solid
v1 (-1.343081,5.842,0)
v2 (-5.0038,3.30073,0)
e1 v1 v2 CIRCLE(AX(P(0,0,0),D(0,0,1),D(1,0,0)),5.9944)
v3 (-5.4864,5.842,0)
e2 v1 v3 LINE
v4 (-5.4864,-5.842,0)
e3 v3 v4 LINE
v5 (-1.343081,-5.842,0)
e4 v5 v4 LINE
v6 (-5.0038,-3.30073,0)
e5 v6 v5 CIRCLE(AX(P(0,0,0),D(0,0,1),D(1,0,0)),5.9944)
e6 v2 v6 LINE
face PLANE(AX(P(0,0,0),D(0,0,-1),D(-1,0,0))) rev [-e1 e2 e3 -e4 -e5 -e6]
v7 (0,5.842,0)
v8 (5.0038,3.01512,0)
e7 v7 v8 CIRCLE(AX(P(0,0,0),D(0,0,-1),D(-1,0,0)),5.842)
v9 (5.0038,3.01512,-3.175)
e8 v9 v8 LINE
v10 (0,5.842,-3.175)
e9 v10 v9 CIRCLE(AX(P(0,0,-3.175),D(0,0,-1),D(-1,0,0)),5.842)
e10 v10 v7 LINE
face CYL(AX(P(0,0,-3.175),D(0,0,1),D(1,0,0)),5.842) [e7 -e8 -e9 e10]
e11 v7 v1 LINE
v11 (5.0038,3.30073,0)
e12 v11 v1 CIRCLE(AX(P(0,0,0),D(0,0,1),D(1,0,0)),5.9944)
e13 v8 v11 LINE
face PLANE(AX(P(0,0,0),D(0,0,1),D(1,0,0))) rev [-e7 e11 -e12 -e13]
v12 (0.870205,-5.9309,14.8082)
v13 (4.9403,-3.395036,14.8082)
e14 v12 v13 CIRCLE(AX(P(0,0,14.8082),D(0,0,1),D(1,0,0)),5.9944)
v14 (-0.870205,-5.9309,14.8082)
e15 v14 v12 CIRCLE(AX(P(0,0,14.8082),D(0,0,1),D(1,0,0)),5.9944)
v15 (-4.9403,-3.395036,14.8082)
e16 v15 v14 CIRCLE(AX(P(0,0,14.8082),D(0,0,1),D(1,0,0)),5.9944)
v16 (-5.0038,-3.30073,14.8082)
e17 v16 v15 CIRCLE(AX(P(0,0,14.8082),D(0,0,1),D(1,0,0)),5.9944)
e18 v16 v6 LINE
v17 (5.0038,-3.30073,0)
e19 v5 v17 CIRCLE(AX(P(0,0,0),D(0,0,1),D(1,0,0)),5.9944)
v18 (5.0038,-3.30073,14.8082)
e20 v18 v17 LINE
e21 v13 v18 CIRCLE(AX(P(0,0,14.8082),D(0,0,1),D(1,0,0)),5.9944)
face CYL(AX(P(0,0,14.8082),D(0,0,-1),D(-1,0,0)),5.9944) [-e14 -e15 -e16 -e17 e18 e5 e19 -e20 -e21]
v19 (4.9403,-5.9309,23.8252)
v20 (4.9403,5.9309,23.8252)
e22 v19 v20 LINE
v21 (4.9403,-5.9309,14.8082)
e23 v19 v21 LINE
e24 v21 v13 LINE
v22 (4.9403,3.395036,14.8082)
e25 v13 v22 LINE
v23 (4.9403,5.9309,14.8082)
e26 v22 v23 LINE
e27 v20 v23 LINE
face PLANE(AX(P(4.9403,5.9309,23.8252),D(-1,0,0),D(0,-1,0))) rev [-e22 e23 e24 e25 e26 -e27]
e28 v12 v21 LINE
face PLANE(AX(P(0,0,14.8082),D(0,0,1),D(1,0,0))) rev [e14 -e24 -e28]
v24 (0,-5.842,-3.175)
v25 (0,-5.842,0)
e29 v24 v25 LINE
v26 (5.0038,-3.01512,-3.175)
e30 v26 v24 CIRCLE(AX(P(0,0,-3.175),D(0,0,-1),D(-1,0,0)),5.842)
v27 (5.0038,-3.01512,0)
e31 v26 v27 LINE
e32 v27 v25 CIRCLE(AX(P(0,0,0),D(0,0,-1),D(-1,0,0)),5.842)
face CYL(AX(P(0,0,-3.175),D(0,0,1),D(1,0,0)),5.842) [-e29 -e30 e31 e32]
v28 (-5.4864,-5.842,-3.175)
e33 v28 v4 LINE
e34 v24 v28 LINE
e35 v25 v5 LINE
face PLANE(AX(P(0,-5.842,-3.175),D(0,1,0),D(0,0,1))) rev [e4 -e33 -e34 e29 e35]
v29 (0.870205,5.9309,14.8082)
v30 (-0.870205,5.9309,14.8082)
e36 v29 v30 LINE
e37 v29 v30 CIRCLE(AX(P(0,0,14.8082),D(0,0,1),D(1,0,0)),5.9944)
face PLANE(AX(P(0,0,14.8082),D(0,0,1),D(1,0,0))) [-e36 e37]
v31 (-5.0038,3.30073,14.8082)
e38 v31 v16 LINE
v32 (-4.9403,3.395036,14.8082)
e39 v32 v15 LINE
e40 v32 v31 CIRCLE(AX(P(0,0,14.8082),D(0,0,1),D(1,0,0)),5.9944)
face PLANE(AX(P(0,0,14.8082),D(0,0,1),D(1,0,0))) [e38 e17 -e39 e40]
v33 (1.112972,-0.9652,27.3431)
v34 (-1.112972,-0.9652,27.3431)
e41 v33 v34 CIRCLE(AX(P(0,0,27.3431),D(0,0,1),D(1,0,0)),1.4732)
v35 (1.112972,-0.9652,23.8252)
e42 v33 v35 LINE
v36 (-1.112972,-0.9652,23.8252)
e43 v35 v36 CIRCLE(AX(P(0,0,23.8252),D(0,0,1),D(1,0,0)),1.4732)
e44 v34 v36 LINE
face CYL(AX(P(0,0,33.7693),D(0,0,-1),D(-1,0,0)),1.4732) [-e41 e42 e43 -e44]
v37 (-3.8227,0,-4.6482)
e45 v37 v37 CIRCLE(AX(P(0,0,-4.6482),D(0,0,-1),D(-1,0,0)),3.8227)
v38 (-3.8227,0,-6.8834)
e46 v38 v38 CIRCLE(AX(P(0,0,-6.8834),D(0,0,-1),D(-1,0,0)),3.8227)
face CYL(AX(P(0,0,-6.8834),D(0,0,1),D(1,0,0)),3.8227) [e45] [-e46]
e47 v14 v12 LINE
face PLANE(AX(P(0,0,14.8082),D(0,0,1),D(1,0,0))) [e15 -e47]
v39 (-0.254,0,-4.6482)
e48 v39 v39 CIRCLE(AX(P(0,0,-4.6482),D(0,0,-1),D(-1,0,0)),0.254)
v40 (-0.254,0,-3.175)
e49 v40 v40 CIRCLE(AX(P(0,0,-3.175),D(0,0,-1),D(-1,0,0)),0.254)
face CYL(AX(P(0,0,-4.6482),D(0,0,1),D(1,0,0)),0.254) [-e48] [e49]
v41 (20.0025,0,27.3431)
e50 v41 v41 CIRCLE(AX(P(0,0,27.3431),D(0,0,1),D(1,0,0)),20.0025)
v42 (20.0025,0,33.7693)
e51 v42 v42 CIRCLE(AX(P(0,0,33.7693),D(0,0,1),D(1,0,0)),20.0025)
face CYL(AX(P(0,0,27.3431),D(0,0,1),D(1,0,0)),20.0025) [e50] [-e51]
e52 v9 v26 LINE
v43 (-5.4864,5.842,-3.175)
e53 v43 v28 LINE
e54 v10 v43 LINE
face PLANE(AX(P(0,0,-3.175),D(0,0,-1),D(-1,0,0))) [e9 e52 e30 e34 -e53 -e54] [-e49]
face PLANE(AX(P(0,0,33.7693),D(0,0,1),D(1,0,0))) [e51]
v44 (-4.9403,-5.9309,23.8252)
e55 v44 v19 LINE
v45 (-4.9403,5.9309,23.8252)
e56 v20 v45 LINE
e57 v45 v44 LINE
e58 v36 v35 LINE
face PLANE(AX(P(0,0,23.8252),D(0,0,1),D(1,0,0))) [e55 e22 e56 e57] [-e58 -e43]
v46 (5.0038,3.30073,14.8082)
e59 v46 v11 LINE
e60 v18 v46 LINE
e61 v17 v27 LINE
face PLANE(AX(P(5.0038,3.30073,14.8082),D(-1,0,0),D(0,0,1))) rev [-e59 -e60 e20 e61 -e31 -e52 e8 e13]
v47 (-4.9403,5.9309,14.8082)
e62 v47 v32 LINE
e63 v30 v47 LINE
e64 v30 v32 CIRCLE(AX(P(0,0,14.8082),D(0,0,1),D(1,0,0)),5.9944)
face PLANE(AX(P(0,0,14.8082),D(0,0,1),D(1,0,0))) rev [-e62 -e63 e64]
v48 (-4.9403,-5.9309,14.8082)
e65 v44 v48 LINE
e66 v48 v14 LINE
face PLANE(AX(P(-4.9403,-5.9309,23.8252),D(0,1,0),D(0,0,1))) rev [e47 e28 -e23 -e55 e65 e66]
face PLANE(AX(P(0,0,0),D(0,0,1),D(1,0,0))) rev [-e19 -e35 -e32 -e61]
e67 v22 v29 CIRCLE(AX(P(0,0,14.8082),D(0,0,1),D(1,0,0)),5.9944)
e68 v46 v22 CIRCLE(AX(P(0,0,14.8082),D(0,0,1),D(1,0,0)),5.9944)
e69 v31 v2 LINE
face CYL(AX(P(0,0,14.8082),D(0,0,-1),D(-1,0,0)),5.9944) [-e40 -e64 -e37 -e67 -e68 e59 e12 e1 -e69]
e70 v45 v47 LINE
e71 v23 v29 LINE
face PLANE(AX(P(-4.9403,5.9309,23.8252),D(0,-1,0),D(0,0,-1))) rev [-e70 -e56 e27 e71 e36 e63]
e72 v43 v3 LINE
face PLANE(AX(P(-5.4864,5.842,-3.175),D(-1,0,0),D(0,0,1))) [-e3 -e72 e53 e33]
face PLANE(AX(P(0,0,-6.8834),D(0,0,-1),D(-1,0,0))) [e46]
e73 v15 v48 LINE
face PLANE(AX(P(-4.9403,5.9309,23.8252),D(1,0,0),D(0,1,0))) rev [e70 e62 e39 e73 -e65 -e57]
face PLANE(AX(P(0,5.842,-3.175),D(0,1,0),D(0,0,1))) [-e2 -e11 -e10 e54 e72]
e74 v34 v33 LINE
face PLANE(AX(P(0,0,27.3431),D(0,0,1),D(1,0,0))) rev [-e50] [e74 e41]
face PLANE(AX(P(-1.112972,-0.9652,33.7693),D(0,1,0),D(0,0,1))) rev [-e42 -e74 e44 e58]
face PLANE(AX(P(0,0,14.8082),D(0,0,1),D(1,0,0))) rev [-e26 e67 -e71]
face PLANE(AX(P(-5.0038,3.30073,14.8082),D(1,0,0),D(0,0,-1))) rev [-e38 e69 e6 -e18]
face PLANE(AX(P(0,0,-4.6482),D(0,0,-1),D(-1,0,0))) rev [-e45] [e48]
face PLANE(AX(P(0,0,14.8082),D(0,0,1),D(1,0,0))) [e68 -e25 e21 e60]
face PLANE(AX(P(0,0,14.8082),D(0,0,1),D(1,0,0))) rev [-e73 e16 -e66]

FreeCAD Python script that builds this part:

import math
import FreeCAD as App
import Part
import Sketcher
from FreeCAD import Vector
Q = App.Units.Quantity

doc = App.newDocument("Part")
body = doc.addObject("PartDesign::Body", "Body")

# Sketch on XY plane
sketch1 = body.newObject("Sketcher::SketchObject", "Sketch")
sketch1.AttachmentSupport = (doc.getObject("XY_Plane"), [""])
sketch1.MapMode = "FlatFace"
sketch1.addGeometry([
    Part.LineSegment(Vector(-5.0038, 3.30073, 0), Vector(-5.0038, -3.30073, 0)),
    Part.ArcOfCircle(Part.Circle(Vector(0, 0, 0), Vector(0, 0, 1), 5.9944), math.radians(-146.589375), math.radians(-33.410625)),
    Part.LineSegment(Vector(5.0038, -3.30073, 0), Vector(5.0038, 3.30073, 0)),
    Part.ArcOfCircle(Part.Circle(Vector(0, 0, 0), Vector(0, 0, 1), 5.9944), math.radians(33.410625), math.radians(146.589375)),
], False)
sketch1.addConstraint([
    Sketcher.Constraint("Coincident", 0, 2, 1, 1),
    Sketcher.Constraint("Coincident", 1, 2, 2, 1),
    Sketcher.Constraint("Coincident", 2, 2, 3, 1),
    Sketcher.Constraint("Coincident", 3, 2, 0, 1),
    Sketcher.Constraint("Vertical", 0),
    Sketcher.Constraint("Vertical", 2),
    Sketcher.Constraint("Coincident", 1, 3, -1, 1),
    Sketcher.Constraint("Coincident", 3, 3, -1, 1),
    Sketcher.Constraint("Equal", 1, 3),
    Sketcher.Constraint("Horizontal", 0, 2, 1, 2),
    Sketcher.Constraint("Radius", 1, Q("0.236 in")),
    Sketcher.Constraint("DistanceY", 0, 2, 0, 1, Q("0.2599 in")),
])
pad1 = body.newObject("PartDesign::Pad", "Pad")
pad1.Profile = sketch1
pad1.Length = Q("0.583 in")

# Sketch on XY plane
sketch2 = body.newObject("Sketcher::SketchObject", "Sketch001")
sketch2.AttachmentSupport = (doc.getObject("XY_Plane"), [""])
sketch2.MapMode = "FlatFace"
sketch2.AttachmentOffset = App.Placement(Vector(0, 0, 0.583 * 25.4), App.Rotation())
sketch2.addGeometry([
    Part.LineSegment(Vector(-4.9403, 5.9309, 0), Vector(-4.9403, -5.9309, 0)),
    Part.LineSegment(Vector(-4.9403, -5.9309, 0), Vector(4.9403, -5.9309, 0)),
    Part.LineSegment(Vector(4.9403, -5.9309, 0), Vector(4.9403, 5.9309, 0)),
    Part.LineSegment(Vector(4.9403, 5.9309, 0), Vector(-4.9403, 5.9309, 0)),
], False)
sketch2.addConstraint([
    Sketcher.Constraint("Coincident", 0, 2, 1, 1),
    Sketcher.Constraint("Coincident", 1, 2, 2, 1),
    Sketcher.Constraint("Coincident", 2, 2, 3, 1),
    Sketcher.Constraint("Coincident", 3, 2, 0, 1),
    Sketcher.Constraint("Vertical", 0),
    Sketcher.Constraint("Horizontal", 1),
    Sketcher.Constraint("Vertical", 2),
    Sketcher.Constraint("Horizontal", 3),
    Sketcher.Constraint("Symmetric", 0, 2, 2, 2, -1, 1),
    Sketcher.Constraint("DistanceX", 1, 1, 1, 2, Q("0.389 in")),
    Sketcher.Constraint("DistanceY", 0, 2, 0, 1, Q("0.467 in")),
])
pad2 = body.newObject("PartDesign::Pad", "Pad001")
pad2.Profile = sketch2
pad2.Length = Q("0.355 in")

# Sketch on XY plane
sketch3 = body.newObject("Sketcher::SketchObject", "Sketch002")
sketch3.AttachmentSupport = (doc.getObject("XY_Plane"), [""])
sketch3.MapMode = "FlatFace"
sketch3.AttachmentOffset = App.Placement(Vector(0, 0, 0.938 * 25.4), App.Rotation())
sketch3.addGeometry([
    Part.LineSegment(Vector(-1.112972, -0.9652, 0), Vector(1.112972, -0.9652, 0)),
    Part.ArcOfCircle(Part.Circle(Vector(0, 0, 0), Vector(0, 0, 1), 1.4732), math.radians(-40.932725), math.radians(220.932725)),
], False)
sketch3.addConstraint([
    Sketcher.Constraint("Coincident", 0, 1, 1, 2),
    Sketcher.Constraint("Coincident", 1, 1, 0, 2),
    Sketcher.Constraint("Horizontal", 0),
    Sketcher.Constraint("Coincident", 1, 3, -1, 1),
    Sketcher.Constraint("Radius", 1, Q("0.058 in")),
    Sketcher.Constraint("DistanceY", 0, 1, -1, 1, Q("0.038 in")),
])
pad3 = body.newObject("PartDesign::Pad", "Pad002")
pad3.Profile = sketch3
pad3.Length = Q("0.3915 in")

# Sketch on XY plane
sketch4 = body.newObject("Sketcher::SketchObject", "Sketch003")
sketch4.AttachmentSupport = (doc.getObject("XY_Plane"), [""])
sketch4.MapMode = "FlatFace"
sketch4.AttachmentOffset = App.Placement(Vector(0, 0, 1.0765 * 25.4), App.Rotation())
sketch4.addGeometry([
    Part.Circle(Vector(0, 0, 0), Vector(0, 0, 1), 20.0025),
    Part.LineSegment(Vector(1.112972, -0.9652, 0), Vector(-1.112972, -0.9652, 0)),
    Part.ArcOfCircle(Part.Circle(Vector(0, 0, 0), Vector(0, 0, 1), 1.4732), math.radians(-40.932725), math.radians(220.932725)),
], False)
sketch4.addConstraint([
    Sketcher.Constraint("Coincident", 1, 1, 2, 1),
    Sketcher.Constraint("Coincident", 2, 2, 1, 2),
    Sketcher.Constraint("Horizontal", 1),
    Sketcher.Constraint("Coincident", 0, 3, -1, 1),
    Sketcher.Constraint("Coincident", 2, 3, -1, 1),
    Sketcher.Constraint("Diameter", 0, Q("1.575 in")),
    Sketcher.Constraint("Radius", 2, Q("0.058 in")),
    Sketcher.Constraint("DistanceY", 1, 1, -1, 1, Q("0.038 in")),
])
pad4 = body.newObject("PartDesign::Pad", "Pad003")
pad4.Profile = sketch4
pad4.Length = Q("0.253 in")

# Sketch on XY plane
sketch5 = body.newObject("Sketcher::SketchObject", "Sketch004")
sketch5.AttachmentSupport = (doc.getObject("XY_Plane"), [""])
sketch5.MapMode = "FlatFace"
sketch5.addGeometry([
    Part.LineSegment(Vector(0, -5.842, 0), Vector(-5.4864, -5.842, 0)),  # 0
    Part.LineSegment(Vector(-5.4864, -5.842, 0), Vector(-5.4864, 5.842, 0)),  # 1
    Part.LineSegment(Vector(-5.4864, 5.842, 0), Vector(0, 5.842, 0)),  # 2
    Part.ArcOfCircle(Part.Circle(Vector(0, 0, 0), Vector(0, 0, 1), 5.842), math.radians(31.071741), math.radians(90)),  # 3
    Part.LineSegment(Vector(5.0038, 3.01512, 0), Vector(5.0038, -3.01512, 0)),  # 4
    Part.ArcOfCircle(Part.Circle(Vector(0, 0, 0), Vector(0, 0, 1), 5.842), math.radians(-90), math.radians(-31.071741)),  # 5
], False)
sketch5.addConstraint([
    Sketcher.Constraint("Coincident", 0, 2, 1, 1),
    Sketcher.Constraint("Coincident", 1, 2, 2, 1),
    Sketcher.Constraint("Tangent", 2, 2, 3, 2),
    Sketcher.Constraint("Coincident", 3, 1, 4, 1),
    Sketcher.Constraint("Coincident", 4, 2, 5, 2),
    Sketcher.Constraint("Tangent", 5, 1, 0, 1),
    Sketcher.Constraint("Horizontal", 0),
    Sketcher.Constraint("Vertical", 1),
    Sketcher.Constraint("Horizontal", 2),
    Sketcher.Constraint("Vertical", 4),
    Sketcher.Constraint("Coincident", 3, 3, -1, 1),
    Sketcher.Constraint("Coincident", 5, 3, -1, 1),
    Sketcher.Constraint("Equal", 3, 5),
    Sketcher.Constraint("Radius", 3, Q("0.23 in")),
    Sketcher.Constraint("DistanceX", 0, 2, 0, 1, Q("0.216 in")),
    Sketcher.Constraint("DistanceX", -1, 1, 3, 1, Q("0.197 in")),
])
pad5 = body.newObject("PartDesign::Pad", "Pad004")
pad5.Profile = sketch5
pad5.Length = Q("0.125 in")
pad5.Reversed = True

# Sketch on XY plane
sketch6 = body.newObject("Sketcher::SketchObject", "Sketch005")
sketch6.AttachmentSupport = (doc.getObject("XY_Plane"), [""])
sketch6.MapMode = "FlatFace"
sketch6.AttachmentOffset = App.Placement(Vector(0, 0, -0.125 * 25.4), App.Rotation())
sketch6.addGeometry(Part.Circle(Vector(0, 0, 0), Vector(0, 0, 1), 0.254), False)
sketch6.addConstraint([
    Sketcher.Constraint("Coincident", 0, 3, -1, 1),
    Sketcher.Constraint("Diameter", 0, Q("0.02 in")),
])
pad6 = body.newObject("PartDesign::Pad", "Pad005")
pad6.Profile = sketch6
pad6.Length = Q("0.058 in")
pad6.Reversed = True

# Sketch on XY plane
sketch7 = body.newObject("Sketcher::SketchObject", "Sketch006")
sketch7.AttachmentSupport = (doc.getObject("XY_Plane"), [""])
sketch7.MapMode = "FlatFace"
sketch7.AttachmentOffset = App.Placement(Vector(0, 0, -0.183 * 25.4), App.Rotation())
sketch7.addGeometry(Part.Circle(Vector(0, 0, 0), Vector(0, 0, 1), 3.8227), False)
sketch7.addConstraint([
    Sketcher.Constraint("Coincident", 0, 3, -1, 1),
    Sketcher.Constraint("Diameter", 0, Q("0.301 in")),
])
pad7 = body.newObject("PartDesign::Pad", "Pad006")
pad7.Profile = sketch7
pad7.Length = Q("0.088 in")
pad7.Reversed = True

doc.recompute()
